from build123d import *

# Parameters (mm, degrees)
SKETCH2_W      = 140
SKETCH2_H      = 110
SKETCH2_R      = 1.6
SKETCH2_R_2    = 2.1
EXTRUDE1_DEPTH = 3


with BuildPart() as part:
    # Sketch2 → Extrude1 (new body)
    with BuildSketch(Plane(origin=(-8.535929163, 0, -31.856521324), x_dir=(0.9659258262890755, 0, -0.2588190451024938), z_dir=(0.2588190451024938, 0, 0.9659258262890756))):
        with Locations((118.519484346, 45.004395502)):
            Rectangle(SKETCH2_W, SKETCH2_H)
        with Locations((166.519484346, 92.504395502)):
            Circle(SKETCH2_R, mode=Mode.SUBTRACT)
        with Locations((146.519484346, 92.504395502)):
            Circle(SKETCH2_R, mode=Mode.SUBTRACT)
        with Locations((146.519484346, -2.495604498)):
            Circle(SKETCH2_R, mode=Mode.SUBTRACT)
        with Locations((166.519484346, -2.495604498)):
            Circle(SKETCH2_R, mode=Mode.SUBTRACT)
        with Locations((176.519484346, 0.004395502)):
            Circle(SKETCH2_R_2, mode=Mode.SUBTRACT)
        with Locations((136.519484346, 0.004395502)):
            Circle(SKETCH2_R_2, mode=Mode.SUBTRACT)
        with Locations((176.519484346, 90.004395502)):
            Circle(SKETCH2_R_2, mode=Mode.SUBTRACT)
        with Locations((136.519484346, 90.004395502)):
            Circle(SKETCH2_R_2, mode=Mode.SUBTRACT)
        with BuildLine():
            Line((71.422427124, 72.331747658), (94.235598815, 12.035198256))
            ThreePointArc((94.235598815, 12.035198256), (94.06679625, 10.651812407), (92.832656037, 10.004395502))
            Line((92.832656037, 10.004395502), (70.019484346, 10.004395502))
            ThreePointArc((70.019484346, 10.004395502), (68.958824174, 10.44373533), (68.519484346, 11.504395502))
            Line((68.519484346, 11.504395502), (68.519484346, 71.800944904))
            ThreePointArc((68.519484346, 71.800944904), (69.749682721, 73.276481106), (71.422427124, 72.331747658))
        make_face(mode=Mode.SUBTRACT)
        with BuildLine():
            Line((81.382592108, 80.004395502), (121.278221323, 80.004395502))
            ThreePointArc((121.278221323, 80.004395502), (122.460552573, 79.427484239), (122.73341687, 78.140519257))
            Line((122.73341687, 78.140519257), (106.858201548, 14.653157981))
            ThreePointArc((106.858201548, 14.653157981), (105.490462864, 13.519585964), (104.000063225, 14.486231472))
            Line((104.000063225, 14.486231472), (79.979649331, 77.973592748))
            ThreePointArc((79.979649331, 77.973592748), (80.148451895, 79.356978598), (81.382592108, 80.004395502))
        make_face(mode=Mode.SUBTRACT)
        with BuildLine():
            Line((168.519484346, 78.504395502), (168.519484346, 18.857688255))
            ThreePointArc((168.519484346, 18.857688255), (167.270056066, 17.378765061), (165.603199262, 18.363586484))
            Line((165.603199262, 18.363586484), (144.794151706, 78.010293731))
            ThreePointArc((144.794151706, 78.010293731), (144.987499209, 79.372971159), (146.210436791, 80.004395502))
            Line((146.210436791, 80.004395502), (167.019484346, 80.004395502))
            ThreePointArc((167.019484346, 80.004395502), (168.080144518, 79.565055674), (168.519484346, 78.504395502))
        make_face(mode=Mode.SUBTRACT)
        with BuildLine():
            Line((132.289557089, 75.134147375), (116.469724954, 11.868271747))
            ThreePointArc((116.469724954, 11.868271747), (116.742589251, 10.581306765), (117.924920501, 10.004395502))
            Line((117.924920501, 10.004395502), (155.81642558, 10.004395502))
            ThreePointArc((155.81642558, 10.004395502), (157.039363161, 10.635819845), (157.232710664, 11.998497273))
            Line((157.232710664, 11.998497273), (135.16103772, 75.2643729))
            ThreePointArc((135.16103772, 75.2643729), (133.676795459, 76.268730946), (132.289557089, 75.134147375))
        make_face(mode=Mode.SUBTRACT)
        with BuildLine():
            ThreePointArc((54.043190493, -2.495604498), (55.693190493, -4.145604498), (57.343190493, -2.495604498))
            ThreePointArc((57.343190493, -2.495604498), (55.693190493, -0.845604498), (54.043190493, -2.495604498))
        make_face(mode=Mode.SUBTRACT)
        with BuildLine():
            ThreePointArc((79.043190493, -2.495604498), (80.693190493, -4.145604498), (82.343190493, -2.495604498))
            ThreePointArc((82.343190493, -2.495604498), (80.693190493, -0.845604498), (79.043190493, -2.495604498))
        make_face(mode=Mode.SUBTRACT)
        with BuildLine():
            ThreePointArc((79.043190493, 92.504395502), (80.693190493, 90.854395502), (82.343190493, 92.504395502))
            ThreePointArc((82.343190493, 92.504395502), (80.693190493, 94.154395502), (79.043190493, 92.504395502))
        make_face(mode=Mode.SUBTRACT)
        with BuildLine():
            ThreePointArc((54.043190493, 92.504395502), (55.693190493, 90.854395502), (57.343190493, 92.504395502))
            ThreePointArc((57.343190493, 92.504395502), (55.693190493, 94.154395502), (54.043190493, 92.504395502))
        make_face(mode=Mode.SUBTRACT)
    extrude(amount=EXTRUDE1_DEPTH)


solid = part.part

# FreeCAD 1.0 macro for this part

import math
import FreeCAD as App
import Part
import Sketcher
from FreeCAD import Vector


def add_polygon(sketch, points):
    """Adds a closed chain of lines whose ends are joined by coincident constraints."""
    first, n = sketch.GeometryCount, len(points)
    for a, b in zip(points, points[1:] + points[:1]):
        sketch.addGeometry(Part.LineSegment(App.Vector(*a, 0), App.Vector(*b, 0)), False)
    for i in range(n):
        sketch.addConstraint(Sketcher.Constraint("Coincident", first + i, 2, first + (i + 1) % n, 1))

doc = App.newDocument("Part")
body = doc.addObject("PartDesign::Body", "Body")

# Sketch on an angled plane
sketch1 = body.newObject("Sketcher::SketchObject", "Sketch")
sketch1.Placement = App.Placement(Vector(-8.535929, 0, -31.856521), App.Rotation(Vector(0.965925826, 0, -0.258819045), Vector(0, 0.999999999, 0), Vector(0.258819045, 0, 0.965925826), "ZXY"))
add_polygon(sketch1, [(48.519484, 100.004395), (48.519484, -9.995604), (188.519484, -9.995604), (188.519484, 100.004395)])  # lines 0-3
sketch1.addGeometry(Part.Circle(Vector(55.69319, -2.495604, 0), Vector(0, 0, 1), 1.65), False)  # 4
sketch1.addGeometry(Part.Circle(Vector(80.69319, -2.495604, 0), Vector(0, 0, 1), 1.65), False)  # 5
sketch1.addGeometry(Part.ArcOfCircle(Part.Circle(Vector(70.019484, 71.800945, 0), Vector(0, 0, 1), 1.5), math.radians(20.724113), math.radians(180)), False)  # 6
sketch1.addGeometry(Part.LineSegment(Vector(71.422427, 72.331748, 0), Vector(94.235599, 12.035198, 0)), False)  # 7
sketch1.addGeometry(Part.ArcOfCircle(Part.Circle(Vector(92.832656, 11.504395, 0), Vector(0, 0, 1), 1.5), math.radians(-90), math.radians(20.724113)), False)  # 8
sketch1.addGeometry(Part.LineSegment(Vector(92.832656, 10.004395, 0), Vector(70.019484, 10.004395, 0)), False)  # 9
sketch1.addGeometry(Part.ArcOfCircle(Part.Circle(Vector(70.019484, 11.504395, 0), Vector(0, 0, 1), 1.5), math.radians(180), math.radians(270)), False)  # 10
sketch1.addGeometry(Part.LineSegment(Vector(68.519484, 11.504395, 0), Vector(68.519484, 71.800945, 0)), False)  # 11
sketch1.addGeometry(Part.Circle(Vector(136.519484, 0.004396, 0), Vector(0, 0, 1), 2.1), False)  # 12
sketch1.addGeometry(Part.Circle(Vector(146.519484, -2.495604, 0), Vector(0, 0, 1), 1.6), False)  # 13
sketch1.addGeometry(Part.Circle(Vector(166.519484, -2.495604, 0), Vector(0, 0, 1), 1.6), False)  # 14
sketch1.addGeometry(Part.Circle(Vector(176.519484, 0.004396, 0), Vector(0, 0, 1), 2.1), False)  # 15
sketch1.addGeometry(Part.LineSegment(Vector(116.469725, 11.868272, 0), Vector(132.289557, 75.134147, 0)), False)  # 16
sketch1.addGeometry(Part.ArcOfCircle(Part.Circle(Vector(133.744753, 74.770271, 0), Vector(0, 0, 1), 1.5), math.radians(19.232434), math.radians(165.96089)), False)  # 17
sketch1.addGeometry(Part.LineSegment(Vector(135.161038, 75.264373, 0), Vector(157.232711, 11.998497, 0)), False)  # 18
sketch1.addGeometry(Part.ArcOfCircle(Part.Circle(Vector(155.816425, 11.504395, 0), Vector(0, 0, 1), 1.5), math.radians(-90), math.radians(19.232434)), False)  # 19
sketch1.addGeometry(Part.LineSegment(Vector(155.816425, 10.004395, 0), Vector(117.92492, 10.004395, 0)), False)  # 20
sketch1.addGeometry(Part.ArcOfCircle(Part.Circle(Vector(117.92492, 11.504395, 0), Vector(0, 0, 1), 1.5), math.radians(165.96089), math.radians(270)), False)  # 21
sketch1.addGeometry(Part.ArcOfCircle(Part.Circle(Vector(81.382592, 78.504395, 0), Vector(0, 0, 1), 1.5), math.radians(90), math.radians(200.724113)), False)  # 22
sketch1.addGeometry(Part.LineSegment(Vector(81.382592, 80.004395, 0), Vector(121.278221, 80.004395, 0)), False)  # 23
sketch1.addGeometry(Part.ArcOfCircle(Part.Circle(Vector(121.278221, 78.504395, 0), Vector(0, 0, 1), 1.5), math.radians(-14.03911), math.radians(90)), False)  # 24
sketch1.addGeometry(Part.LineSegment(Vector(122.733417, 78.140519, 0), Vector(106.858201, 14.653158, 0)), False)  # 25
sketch1.addGeometry(Part.ArcOfCircle(Part.Circle(Vector(105.403006, 15.017034, 0), Vector(0, 0, 1), 1.5), math.radians(-159.275887), math.radians(-14.03911)), False)  # 26
sketch1.addGeometry(Part.LineSegment(Vector(104.000063, 14.486231, 0), Vector(79.979649, 77.973593, 0)), False)  # 27
sketch1.addGeometry(Part.Circle(Vector(55.69319, 92.504395, 0), Vector(0, 0, 1), 1.65), False)  # 28
sketch1.addGeometry(Part.Circle(Vector(80.69319, 92.504395, 0), Vector(0, 0, 1), 1.65), False)  # 29
sketch1.addGeometry(Part.ArcOfCircle(Part.Circle(Vector(167.019484, 78.504395, 0), Vector(0, 0, 1), 1.5), math.radians(0), math.radians(90)), False)  # 30
sketch1.addGeometry(Part.LineSegment(Vector(168.519484, 78.504395, 0), Vector(168.519484, 18.857688, 0)), False)  # 31
sketch1.addGeometry(Part.ArcOfCircle(Part.Circle(Vector(167.019484, 18.857688, 0), Vector(0, 0, 1), 1.5), math.radians(-160.767566), math.radians(0)), False)  # 32
sketch1.addGeometry(Part.LineSegment(Vector(165.603199, 18.363586, 0), Vector(144.794152, 78.010294, 0)), False)  # 33
sketch1.addGeometry(Part.ArcOfCircle(Part.Circle(Vector(146.210437, 78.504395, 0), Vector(0, 0, 1), 1.5), math.radians(90), math.radians(199.232434)), False)  # 34
sketch1.addGeometry(Part.LineSegment(Vector(146.210437, 80.004395, 0), Vector(167.019484, 80.004395, 0)), False)  # 35
sketch1.addGeometry(Part.Circle(Vector(136.519484, 90.004395, 0), Vector(0, 0, 1), 2.1), False)  # 36
sketch1.addGeometry(Part.Circle(Vector(146.519484, 92.504395, 0), Vector(0, 0, 1), 1.6), False)  # 37
sketch1.addGeometry(Part.Circle(Vector(166.519484, 92.504395, 0), Vector(0, 0, 1), 1.6), False)  # 38
sketch1.addGeometry(Part.Circle(Vector(176.519484, 90.004395, 0), Vector(0, 0, 1), 2.1), False)  # 39
sketch1.addConstraint(Sketcher.Constraint("Coincident", 6, 1, 7, 1))
sketch1.addConstraint(Sketcher.Constraint("Coincident", 7, 2, 8, 2))
sketch1.addConstraint(Sketcher.Constraint("Coincident", 8, 1, 9, 1))
sketch1.addConstraint(Sketcher.Constraint("Coincident", 9, 2, 10, 2))
sketch1.addConstraint(Sketcher.Constraint("Coincident", 10, 1, 11, 1))
sketch1.addConstraint(Sketcher.Constraint("Coincident", 11, 2, 6, 2))
sketch1.addConstraint(Sketcher.Constraint("Coincident", 16, 2, 17, 2))
sketch1.addConstraint(Sketcher.Constraint("Coincident", 17, 1, 18, 1))
sketch1.addConstraint(Sketcher.Constraint("Coincident", 18, 2, 19, 2))
sketch1.addConstraint(Sketcher.Constraint("Coincident", 19, 1, 20, 1))
sketch1.addConstraint(Sketcher.Constraint("Coincident", 20, 2, 21, 2))
sketch1.addConstraint(Sketcher.Constraint("Coincident", 21, 1, 16, 1))
sketch1.addConstraint(Sketcher.Constraint("Coincident", 22, 1, 23, 1))
sketch1.addConstraint(Sketcher.Constraint("Coincident", 23, 2, 24, 2))
sketch1.addConstraint(Sketcher.Constraint("Coincident", 24, 1, 25, 1))
sketch1.addConstraint(Sketcher.Constraint("Coincident", 25, 2, 26, 2))
sketch1.addConstraint(Sketcher.Constraint("Coincident", 26, 1, 27, 1))
sketch1.addConstraint(Sketcher.Constraint("Coincident", 27, 2, 22, 2))
sketch1.addConstraint(Sketcher.Constraint("Coincident", 30, 1, 31, 1))
sketch1.addConstraint(Sketcher.Constraint("Coincident", 31, 2, 32, 2))
sketch1.addConstraint(Sketcher.Constraint("Coincident", 32, 1, 33, 1))
sketch1.addConstraint(Sketcher.Constraint("Coincident", 33, 2, 34, 2))
sketch1.addConstraint(Sketcher.Constraint("Coincident", 34, 1, 35, 1))
sketch1.addConstraint(Sketcher.Constraint("Coincident", 35, 2, 30, 2))
sketch1.addConstraint(Sketcher.Constraint("Vertical", 0))
sketch1.addConstraint(Sketcher.Constraint("Horizontal", 1))
sketch1.addConstraint(Sketcher.Constraint("Vertical", 2))
sketch1.addConstraint(Sketcher.Constraint("Horizontal", 3))
sketch1.addConstraint(Sketcher.Constraint("Horizontal", 9))
sketch1.addConstraint(Sketcher.Constraint("Vertical", 11))
sketch1.addConstraint(Sketcher.Constraint("Horizontal", 20))
sketch1.addConstraint(Sketcher.Constraint("Horizontal", 23))
sketch1.addConstraint(Sketcher.Constraint("Vertical", 31))
sketch1.addConstraint(Sketcher.Constraint("Horizontal", 35))
sketch1.addConstraint(Sketcher.Constraint("Diameter", 4, 3.3))
sketch1.addConstraint(Sketcher.Constraint("Diameter", 5, 3.3))
sketch1.addConstraint(Sketcher.Constraint("Diameter", 12, 4.2))
sketch1.addConstraint(Sketcher.Constraint("Diameter", 13, 3.2))
sketch1.addConstraint(Sketcher.Constraint("Diameter", 14, 3.2))
sketch1.addConstraint(Sketcher.Constraint("Diameter", 15, 4.2))
sketch1.addConstraint(Sketcher.Constraint("Diameter", 28, 3.3))
sketch1.addConstraint(Sketcher.Constraint("Diameter", 29, 3.3))
sketch1.addConstraint(Sketcher.Constraint("Diameter", 36, 4.2))
sketch1.addConstraint(Sketcher.Constraint("Diameter", 37, 3.2))
sketch1.addConstraint(Sketcher.Constraint("Diameter", 38, 3.2))
sketch1.addConstraint(Sketcher.Constraint("Diameter", 39, 4.2))
sketch1.addConstraint(Sketcher.Constraint("Radius", 6, 1.5))
sketch1.addConstraint(Sketcher.Constraint("Radius", 8, 1.5))
sketch1.addConstraint(Sketcher.Constraint("Radius", 10, 1.5))
sketch1.addConstraint(Sketcher.Constraint("Radius", 17, 1.5))
sketch1.addConstraint(Sketcher.Constraint("Radius", 19, 1.5))
sketch1.addConstraint(Sketcher.Constraint("Radius", 21, 1.5))
sketch1.addConstraint(Sketcher.Constraint("Radius", 22, 1.5))
sketch1.addConstraint(Sketcher.Constraint("Radius", 24, 1.5))
sketch1.addConstraint(Sketcher.Constraint("Radius", 26, 1.5))
sketch1.addConstraint(Sketcher.Constraint("Radius", 30, 1.5))
sketch1.addConstraint(Sketcher.Constraint("Radius", 32, 1.5))
sketch1.addConstraint(Sketcher.Constraint("Radius", 34, 1.5))
sketch1.addConstraint(Sketcher.Constraint("DistanceX", 1, 1, 1, 2, 140.0))
sketch1.addConstraint(Sketcher.Constraint("DistanceY", 0, 2, 0, 1, 110.0))
sketch1.addConstraint(Sketcher.Constraint("DistanceX", 4, 3, 5, 3, 25.0))
sketch1.addConstraint(Sketcher.Constraint("DistanceY", 5, 3, 8, 3, 14.0))
sketch1.addConstraint(Sketcher.Constraint("DistanceY", 4, 3, 8, 3, 14.0))
sketch1.addConstraint(Sketcher.Constraint("DistanceX", 12, 3, 13, 3, 10.0))
sketch1.addConstraint(Sketcher.Constraint("DistanceY", 13, 3, 8, 3, 14.0))
sketch1.addConstraint(Sketcher.Constraint("DistanceX", 13, 3, 14, 3, 20.0))
sketch1.addConstraint(Sketcher.Constraint("DistanceY", 14, 3, 8, 3, 14.0))
sketch1.addConstraint(Sketcher.Constraint("DistanceX", 14, 3, 15, 3, 10.0))
sketch1.addConstraint(Sketcher.Constraint("DistanceY", 13, 3, 19, 3, 14.0))
sketch1.addConstraint(Sketcher.Constraint("DistanceY", 10, 3, 22, 3, 67.0))
sketch1.addConstraint(Sketcher.Constraint("DistanceY", 22, 3, 28, 3, 14.0))
sketch1.addConstraint(Sketcher.Constraint("DistanceY", 22, 3, 29, 3, 14.0))
sketch1.addConstraint(Sketcher.Constraint("DistanceX", 28, 3, 29, 3, 25.0))
sketch1.addConstraint(Sketcher.Constraint("DistanceY", 19, 3, 30, 3, 67.0))
sketch1.addConstraint(Sketcher.Constraint("DistanceX", 36, 3, 37, 3, 10.0))
sketch1.addConstraint(Sketcher.Constraint("DistanceY", 34, 3, 37, 3, 14.0))
sketch1.addConstraint(Sketcher.Constraint("DistanceY", 30, 3, 38, 3, 14.0))
sketch1.addConstraint(Sketcher.Constraint("DistanceX", 37, 3, 38, 3, 20.0))
sketch1.addConstraint(Sketcher.Constraint("DistanceX", 38, 3, 39, 3, 10.0))
sketch1.addConstraint(Sketcher.Constraint("DistanceX", 15, 3, 1, 2, 12.0))
sketch1.addConstraint(Sketcher.Constraint("DistanceY", 1, 2, 15, 3, 10.0))
sketch1.addConstraint(Sketcher.Constraint("DistanceX", 39, 3, 2, 2, 12.0))
sketch1.addConstraint(Sketcher.Constraint("DistanceY", 39, 3, 2, 2, 10.0))
sketch1.addConstraint(Sketcher.Constraint("DistanceY", 5, 3, 10, 1, 14.0))
sketch1.addConstraint(Sketcher.Constraint("DistanceY", 12, 3, 20, 2, 10.0))
sketch1.addConstraint(Sketcher.Constraint("DistanceY", 23, 2, 36, 3, 10.0))
sketch1.addConstraint(Sketcher.Constraint("DistanceX", 30, 1, 39, 3, 8.0))
sketch1.addConstraint(Sketcher.Constraint("DistanceY", 30, 1, 38, 3, 14.0))
sketch1.addConstraint(Sketcher.Constraint("DistanceY", 35, 2, 39, 3, 10.0))
sketch1.addConstraint(Sketcher.Constraint("DistanceX", 10, 3, 12, 3, 66.5))
sketch1.addConstraint(Sketcher.Constraint("DistanceX", 10, 1, 9, 2, 1.5))
sketch1.addConstraint(Sketcher.Constraint("DistanceX", 35, 2, 30, 1, 1.5))
sketch1.addConstraint(Sketcher.Constraint("DistanceX", 9, 2, 9, 1, 22.813172))
sketch1.addConstraint(Sketcher.Constraint("DistanceX", 23, 1, 23, 2, 39.895629))
sketch1.addConstraint(Sketcher.Constraint("DistanceY", 11, 1, 11, 2, 60.296549))
sketch1.addConstraint(Sketcher.Constraint("DistanceX", -1, 1, 7, 2, 94.235599))
sketch1.addConstraint(Sketcher.Constraint("DistanceY", -1, 1, 7, 2, 12.035198))
sketch1.addConstraint(Sketcher.Constraint("DistanceX", -1, 1, 25, 2, 106.858201))
sketch1.addConstraint(Sketcher.Constraint("DistanceX", -1, 1, 32, 1, 165.603199))
sketch1.addConstraint(Sketcher.Constraint("DistanceX", 21, 3, 24, 3, 3.353301))
sketch1.addConstraint(Sketcher.Constraint("DistanceX", 28, 3, 22, 3, 25.689402))
sketch1.addConstraint(Sketcher.Constraint("DistanceY", 17, 3, 17, 1, 0.494102))
sketch1.addConstraint(Sketcher.Constraint("DistanceX", 17, 1, 34, 3, 11.049399))
sketch1.addConstraint(Sketcher.Constraint("DistanceY", 19, 3, 18, 2, 0.494102))
sketch1.addConstraint(Sketcher.Constraint("DistanceX", 29, 3, 22, 1, 0.689402))
sketch1.addConstraint(Sketcher.Constraint("DistanceY", 32, 1, 32, 3, 0.494102))
sketch1.addConstraint(Sketcher.Constraint("DistanceY", 32, 1, 31, 2, 0.494102))
sketch1.addConstraint(Sketcher.Constraint("DistanceY", 33, 2, 34, 3, 0.494102))
sketch1.addConstraint(Sketcher.Constraint("DistanceX", 17, 1, 34, 1, 11.049399))
sketch1.addConstraint(Sketcher.Constraint("Distance", 27, 67.879491))
sketch1.addConstraint(Sketcher.Constraint("DistanceX", 20, 2, 20, 1, 37.891505))
sketch1.addConstraint(Sketcher.Constraint("DistanceX", 35, 1, 35, 2, 20.809048))
sketch1.addConstraint(Sketcher.Constraint("DistanceY", 31, 2, 31, 1, 59.646707))
sketch1.addConstraint(Sketcher.Constraint("DistanceX", -1, 1, 4, 3, 55.69319))
sketch1.addConstraint(Sketcher.Constraint("DistanceY", -1, 1, 17, 3, 74.770271))
sketch1.addConstraint(Sketcher.Constraint("DistanceX", -1, 1, 21, 3, 117.92492))
sketch1.addConstraint(Sketcher.Constraint("DistanceX", -1, 1, 28, 3, 55.69319))
sketch1.addConstraint(Sketcher.Constraint("DistanceY", -1, 1, 32, 3, 18.857688))
sketch1.addConstraint(Sketcher.Constraint("DistanceX", -1, 1, 18, 2, 157.232711))
sketch1.addConstraint(Sketcher.Constraint("DistanceX", -1, 1, 20, 2, 117.92492))
sketch1.addConstraint(Sketcher.Constraint("DistanceY", -1, 1, 21, 1, 11.868272))
sketch1.addConstraint(Sketcher.Constraint("DistanceY", -1, 1, 24, 1, 78.140519))
sketch1.addConstraint(Sketcher.Constraint("DistanceY", -1, 1, 26, 1, 14.486231))
sketch1.addConstraint(Sketcher.Constraint("DistanceX", -1, 1, 27, 2, 79.979649))
sketch1.addConstraint(Sketcher.Constraint("DistanceY", 5, 3, 6, 3, 74.296549))
sketch1.addConstraint(Sketcher.Constraint("DistanceY", 21, 3, 26, 3, 3.512639))
sketch1.addConstraint(Sketcher.Constraint("DistanceY", 16, 2, 24, 3, 3.370248))
sketch1.addConstraint(Sketcher.Constraint("Distance", 7, 64.467935))
pad1 = body.newObject("PartDesign::Pad", "Pad")
pad1.Profile = sketch1
pad1.Length = 3

doc.recompute()
